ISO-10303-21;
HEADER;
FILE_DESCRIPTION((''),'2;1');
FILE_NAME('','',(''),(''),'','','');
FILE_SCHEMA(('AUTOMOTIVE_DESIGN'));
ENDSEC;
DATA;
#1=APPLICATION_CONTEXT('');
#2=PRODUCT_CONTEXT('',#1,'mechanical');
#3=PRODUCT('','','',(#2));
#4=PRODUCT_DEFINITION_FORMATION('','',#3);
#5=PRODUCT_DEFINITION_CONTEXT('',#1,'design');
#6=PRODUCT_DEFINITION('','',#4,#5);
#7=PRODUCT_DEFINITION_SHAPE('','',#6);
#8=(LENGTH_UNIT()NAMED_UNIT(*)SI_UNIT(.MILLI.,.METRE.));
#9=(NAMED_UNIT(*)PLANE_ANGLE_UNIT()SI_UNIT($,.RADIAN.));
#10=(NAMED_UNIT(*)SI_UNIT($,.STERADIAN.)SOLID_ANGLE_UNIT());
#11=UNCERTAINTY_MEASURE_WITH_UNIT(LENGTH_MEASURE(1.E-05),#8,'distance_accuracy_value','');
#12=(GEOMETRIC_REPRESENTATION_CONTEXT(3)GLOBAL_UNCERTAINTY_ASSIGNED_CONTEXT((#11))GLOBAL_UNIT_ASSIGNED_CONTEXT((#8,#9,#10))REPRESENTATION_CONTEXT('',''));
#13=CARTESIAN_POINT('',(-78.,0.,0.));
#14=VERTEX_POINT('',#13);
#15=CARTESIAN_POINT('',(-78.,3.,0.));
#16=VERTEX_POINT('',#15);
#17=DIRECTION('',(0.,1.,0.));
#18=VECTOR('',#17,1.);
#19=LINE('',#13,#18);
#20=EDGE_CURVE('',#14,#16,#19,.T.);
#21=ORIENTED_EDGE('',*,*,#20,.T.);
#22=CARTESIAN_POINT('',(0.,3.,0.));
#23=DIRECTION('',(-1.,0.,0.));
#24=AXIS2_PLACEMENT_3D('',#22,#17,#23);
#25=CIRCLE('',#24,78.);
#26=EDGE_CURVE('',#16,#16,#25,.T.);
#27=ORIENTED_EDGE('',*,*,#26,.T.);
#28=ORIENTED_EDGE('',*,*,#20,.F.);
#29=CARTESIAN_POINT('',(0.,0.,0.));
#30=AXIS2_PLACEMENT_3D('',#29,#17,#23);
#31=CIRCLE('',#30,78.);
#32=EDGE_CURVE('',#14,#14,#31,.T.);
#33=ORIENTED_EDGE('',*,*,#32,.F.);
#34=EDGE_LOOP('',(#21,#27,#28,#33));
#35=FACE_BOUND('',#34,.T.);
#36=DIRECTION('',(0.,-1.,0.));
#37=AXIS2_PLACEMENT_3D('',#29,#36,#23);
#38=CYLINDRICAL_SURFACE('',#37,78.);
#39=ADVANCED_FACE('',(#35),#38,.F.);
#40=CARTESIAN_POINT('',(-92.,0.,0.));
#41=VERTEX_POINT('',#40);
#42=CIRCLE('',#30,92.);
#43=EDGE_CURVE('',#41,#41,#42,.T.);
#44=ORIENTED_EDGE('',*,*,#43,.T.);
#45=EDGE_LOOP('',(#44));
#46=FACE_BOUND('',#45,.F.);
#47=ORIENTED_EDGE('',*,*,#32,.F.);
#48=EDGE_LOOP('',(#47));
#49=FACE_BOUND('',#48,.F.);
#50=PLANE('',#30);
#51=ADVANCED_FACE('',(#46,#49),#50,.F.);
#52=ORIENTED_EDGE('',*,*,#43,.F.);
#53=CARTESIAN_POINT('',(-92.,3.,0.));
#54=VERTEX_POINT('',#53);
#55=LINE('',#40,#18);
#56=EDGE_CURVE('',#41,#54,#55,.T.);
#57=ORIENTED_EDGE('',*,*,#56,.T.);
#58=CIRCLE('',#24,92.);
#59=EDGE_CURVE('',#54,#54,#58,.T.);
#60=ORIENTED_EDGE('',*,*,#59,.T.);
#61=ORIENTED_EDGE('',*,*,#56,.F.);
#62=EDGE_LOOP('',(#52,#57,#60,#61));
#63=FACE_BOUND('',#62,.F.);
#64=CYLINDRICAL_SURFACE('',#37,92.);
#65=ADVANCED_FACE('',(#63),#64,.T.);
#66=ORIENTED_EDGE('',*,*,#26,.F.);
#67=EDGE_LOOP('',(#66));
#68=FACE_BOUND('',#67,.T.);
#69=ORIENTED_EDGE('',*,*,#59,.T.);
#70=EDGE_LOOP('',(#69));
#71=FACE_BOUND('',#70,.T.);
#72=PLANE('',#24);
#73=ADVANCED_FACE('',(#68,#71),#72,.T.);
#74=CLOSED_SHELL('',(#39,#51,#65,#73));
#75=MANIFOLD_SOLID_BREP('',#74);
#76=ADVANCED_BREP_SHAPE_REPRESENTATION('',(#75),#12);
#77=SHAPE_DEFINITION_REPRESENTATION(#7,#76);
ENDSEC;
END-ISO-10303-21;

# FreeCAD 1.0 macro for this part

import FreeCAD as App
import Part
import Sketcher

doc = App.newDocument("Part")
body = doc.addObject("PartDesign::Body", "Body")

# Sketch on XZ plane
sketch1 = doc.addObject("Sketcher::SketchObject", "Sketch")
body.addObject(sketch1)
sketch1.AttachmentSupport = (doc.XZ_Plane, [""])
sketch1.MapMode = "FlatFace"
sketch1.addGeometry([
    Part.Circle(App.Vector(0, 0, 0), App.Vector(0, 0, 1), 92),
    Part.Circle(App.Vector(0, 0, 0), App.Vector(0, 0, 1), 78),
], False)
sketch1.addConstraint([
    Sketcher.Constraint("Coincident", 0, 3, -1, 1),
    Sketcher.Constraint("Coincident", 1, 3, -1, 1),
    Sketcher.Constraint("Diameter", 0, 184.0),
    Sketcher.Constraint("Diameter", 1, 156.0),
])
pad1 = doc.addObject("PartDesign::Pad", "Pad")
body.addObject(pad1)
pad1.Profile = sketch1
pad1.Length = 3
pad1.Reversed = True

doc.recompute()
